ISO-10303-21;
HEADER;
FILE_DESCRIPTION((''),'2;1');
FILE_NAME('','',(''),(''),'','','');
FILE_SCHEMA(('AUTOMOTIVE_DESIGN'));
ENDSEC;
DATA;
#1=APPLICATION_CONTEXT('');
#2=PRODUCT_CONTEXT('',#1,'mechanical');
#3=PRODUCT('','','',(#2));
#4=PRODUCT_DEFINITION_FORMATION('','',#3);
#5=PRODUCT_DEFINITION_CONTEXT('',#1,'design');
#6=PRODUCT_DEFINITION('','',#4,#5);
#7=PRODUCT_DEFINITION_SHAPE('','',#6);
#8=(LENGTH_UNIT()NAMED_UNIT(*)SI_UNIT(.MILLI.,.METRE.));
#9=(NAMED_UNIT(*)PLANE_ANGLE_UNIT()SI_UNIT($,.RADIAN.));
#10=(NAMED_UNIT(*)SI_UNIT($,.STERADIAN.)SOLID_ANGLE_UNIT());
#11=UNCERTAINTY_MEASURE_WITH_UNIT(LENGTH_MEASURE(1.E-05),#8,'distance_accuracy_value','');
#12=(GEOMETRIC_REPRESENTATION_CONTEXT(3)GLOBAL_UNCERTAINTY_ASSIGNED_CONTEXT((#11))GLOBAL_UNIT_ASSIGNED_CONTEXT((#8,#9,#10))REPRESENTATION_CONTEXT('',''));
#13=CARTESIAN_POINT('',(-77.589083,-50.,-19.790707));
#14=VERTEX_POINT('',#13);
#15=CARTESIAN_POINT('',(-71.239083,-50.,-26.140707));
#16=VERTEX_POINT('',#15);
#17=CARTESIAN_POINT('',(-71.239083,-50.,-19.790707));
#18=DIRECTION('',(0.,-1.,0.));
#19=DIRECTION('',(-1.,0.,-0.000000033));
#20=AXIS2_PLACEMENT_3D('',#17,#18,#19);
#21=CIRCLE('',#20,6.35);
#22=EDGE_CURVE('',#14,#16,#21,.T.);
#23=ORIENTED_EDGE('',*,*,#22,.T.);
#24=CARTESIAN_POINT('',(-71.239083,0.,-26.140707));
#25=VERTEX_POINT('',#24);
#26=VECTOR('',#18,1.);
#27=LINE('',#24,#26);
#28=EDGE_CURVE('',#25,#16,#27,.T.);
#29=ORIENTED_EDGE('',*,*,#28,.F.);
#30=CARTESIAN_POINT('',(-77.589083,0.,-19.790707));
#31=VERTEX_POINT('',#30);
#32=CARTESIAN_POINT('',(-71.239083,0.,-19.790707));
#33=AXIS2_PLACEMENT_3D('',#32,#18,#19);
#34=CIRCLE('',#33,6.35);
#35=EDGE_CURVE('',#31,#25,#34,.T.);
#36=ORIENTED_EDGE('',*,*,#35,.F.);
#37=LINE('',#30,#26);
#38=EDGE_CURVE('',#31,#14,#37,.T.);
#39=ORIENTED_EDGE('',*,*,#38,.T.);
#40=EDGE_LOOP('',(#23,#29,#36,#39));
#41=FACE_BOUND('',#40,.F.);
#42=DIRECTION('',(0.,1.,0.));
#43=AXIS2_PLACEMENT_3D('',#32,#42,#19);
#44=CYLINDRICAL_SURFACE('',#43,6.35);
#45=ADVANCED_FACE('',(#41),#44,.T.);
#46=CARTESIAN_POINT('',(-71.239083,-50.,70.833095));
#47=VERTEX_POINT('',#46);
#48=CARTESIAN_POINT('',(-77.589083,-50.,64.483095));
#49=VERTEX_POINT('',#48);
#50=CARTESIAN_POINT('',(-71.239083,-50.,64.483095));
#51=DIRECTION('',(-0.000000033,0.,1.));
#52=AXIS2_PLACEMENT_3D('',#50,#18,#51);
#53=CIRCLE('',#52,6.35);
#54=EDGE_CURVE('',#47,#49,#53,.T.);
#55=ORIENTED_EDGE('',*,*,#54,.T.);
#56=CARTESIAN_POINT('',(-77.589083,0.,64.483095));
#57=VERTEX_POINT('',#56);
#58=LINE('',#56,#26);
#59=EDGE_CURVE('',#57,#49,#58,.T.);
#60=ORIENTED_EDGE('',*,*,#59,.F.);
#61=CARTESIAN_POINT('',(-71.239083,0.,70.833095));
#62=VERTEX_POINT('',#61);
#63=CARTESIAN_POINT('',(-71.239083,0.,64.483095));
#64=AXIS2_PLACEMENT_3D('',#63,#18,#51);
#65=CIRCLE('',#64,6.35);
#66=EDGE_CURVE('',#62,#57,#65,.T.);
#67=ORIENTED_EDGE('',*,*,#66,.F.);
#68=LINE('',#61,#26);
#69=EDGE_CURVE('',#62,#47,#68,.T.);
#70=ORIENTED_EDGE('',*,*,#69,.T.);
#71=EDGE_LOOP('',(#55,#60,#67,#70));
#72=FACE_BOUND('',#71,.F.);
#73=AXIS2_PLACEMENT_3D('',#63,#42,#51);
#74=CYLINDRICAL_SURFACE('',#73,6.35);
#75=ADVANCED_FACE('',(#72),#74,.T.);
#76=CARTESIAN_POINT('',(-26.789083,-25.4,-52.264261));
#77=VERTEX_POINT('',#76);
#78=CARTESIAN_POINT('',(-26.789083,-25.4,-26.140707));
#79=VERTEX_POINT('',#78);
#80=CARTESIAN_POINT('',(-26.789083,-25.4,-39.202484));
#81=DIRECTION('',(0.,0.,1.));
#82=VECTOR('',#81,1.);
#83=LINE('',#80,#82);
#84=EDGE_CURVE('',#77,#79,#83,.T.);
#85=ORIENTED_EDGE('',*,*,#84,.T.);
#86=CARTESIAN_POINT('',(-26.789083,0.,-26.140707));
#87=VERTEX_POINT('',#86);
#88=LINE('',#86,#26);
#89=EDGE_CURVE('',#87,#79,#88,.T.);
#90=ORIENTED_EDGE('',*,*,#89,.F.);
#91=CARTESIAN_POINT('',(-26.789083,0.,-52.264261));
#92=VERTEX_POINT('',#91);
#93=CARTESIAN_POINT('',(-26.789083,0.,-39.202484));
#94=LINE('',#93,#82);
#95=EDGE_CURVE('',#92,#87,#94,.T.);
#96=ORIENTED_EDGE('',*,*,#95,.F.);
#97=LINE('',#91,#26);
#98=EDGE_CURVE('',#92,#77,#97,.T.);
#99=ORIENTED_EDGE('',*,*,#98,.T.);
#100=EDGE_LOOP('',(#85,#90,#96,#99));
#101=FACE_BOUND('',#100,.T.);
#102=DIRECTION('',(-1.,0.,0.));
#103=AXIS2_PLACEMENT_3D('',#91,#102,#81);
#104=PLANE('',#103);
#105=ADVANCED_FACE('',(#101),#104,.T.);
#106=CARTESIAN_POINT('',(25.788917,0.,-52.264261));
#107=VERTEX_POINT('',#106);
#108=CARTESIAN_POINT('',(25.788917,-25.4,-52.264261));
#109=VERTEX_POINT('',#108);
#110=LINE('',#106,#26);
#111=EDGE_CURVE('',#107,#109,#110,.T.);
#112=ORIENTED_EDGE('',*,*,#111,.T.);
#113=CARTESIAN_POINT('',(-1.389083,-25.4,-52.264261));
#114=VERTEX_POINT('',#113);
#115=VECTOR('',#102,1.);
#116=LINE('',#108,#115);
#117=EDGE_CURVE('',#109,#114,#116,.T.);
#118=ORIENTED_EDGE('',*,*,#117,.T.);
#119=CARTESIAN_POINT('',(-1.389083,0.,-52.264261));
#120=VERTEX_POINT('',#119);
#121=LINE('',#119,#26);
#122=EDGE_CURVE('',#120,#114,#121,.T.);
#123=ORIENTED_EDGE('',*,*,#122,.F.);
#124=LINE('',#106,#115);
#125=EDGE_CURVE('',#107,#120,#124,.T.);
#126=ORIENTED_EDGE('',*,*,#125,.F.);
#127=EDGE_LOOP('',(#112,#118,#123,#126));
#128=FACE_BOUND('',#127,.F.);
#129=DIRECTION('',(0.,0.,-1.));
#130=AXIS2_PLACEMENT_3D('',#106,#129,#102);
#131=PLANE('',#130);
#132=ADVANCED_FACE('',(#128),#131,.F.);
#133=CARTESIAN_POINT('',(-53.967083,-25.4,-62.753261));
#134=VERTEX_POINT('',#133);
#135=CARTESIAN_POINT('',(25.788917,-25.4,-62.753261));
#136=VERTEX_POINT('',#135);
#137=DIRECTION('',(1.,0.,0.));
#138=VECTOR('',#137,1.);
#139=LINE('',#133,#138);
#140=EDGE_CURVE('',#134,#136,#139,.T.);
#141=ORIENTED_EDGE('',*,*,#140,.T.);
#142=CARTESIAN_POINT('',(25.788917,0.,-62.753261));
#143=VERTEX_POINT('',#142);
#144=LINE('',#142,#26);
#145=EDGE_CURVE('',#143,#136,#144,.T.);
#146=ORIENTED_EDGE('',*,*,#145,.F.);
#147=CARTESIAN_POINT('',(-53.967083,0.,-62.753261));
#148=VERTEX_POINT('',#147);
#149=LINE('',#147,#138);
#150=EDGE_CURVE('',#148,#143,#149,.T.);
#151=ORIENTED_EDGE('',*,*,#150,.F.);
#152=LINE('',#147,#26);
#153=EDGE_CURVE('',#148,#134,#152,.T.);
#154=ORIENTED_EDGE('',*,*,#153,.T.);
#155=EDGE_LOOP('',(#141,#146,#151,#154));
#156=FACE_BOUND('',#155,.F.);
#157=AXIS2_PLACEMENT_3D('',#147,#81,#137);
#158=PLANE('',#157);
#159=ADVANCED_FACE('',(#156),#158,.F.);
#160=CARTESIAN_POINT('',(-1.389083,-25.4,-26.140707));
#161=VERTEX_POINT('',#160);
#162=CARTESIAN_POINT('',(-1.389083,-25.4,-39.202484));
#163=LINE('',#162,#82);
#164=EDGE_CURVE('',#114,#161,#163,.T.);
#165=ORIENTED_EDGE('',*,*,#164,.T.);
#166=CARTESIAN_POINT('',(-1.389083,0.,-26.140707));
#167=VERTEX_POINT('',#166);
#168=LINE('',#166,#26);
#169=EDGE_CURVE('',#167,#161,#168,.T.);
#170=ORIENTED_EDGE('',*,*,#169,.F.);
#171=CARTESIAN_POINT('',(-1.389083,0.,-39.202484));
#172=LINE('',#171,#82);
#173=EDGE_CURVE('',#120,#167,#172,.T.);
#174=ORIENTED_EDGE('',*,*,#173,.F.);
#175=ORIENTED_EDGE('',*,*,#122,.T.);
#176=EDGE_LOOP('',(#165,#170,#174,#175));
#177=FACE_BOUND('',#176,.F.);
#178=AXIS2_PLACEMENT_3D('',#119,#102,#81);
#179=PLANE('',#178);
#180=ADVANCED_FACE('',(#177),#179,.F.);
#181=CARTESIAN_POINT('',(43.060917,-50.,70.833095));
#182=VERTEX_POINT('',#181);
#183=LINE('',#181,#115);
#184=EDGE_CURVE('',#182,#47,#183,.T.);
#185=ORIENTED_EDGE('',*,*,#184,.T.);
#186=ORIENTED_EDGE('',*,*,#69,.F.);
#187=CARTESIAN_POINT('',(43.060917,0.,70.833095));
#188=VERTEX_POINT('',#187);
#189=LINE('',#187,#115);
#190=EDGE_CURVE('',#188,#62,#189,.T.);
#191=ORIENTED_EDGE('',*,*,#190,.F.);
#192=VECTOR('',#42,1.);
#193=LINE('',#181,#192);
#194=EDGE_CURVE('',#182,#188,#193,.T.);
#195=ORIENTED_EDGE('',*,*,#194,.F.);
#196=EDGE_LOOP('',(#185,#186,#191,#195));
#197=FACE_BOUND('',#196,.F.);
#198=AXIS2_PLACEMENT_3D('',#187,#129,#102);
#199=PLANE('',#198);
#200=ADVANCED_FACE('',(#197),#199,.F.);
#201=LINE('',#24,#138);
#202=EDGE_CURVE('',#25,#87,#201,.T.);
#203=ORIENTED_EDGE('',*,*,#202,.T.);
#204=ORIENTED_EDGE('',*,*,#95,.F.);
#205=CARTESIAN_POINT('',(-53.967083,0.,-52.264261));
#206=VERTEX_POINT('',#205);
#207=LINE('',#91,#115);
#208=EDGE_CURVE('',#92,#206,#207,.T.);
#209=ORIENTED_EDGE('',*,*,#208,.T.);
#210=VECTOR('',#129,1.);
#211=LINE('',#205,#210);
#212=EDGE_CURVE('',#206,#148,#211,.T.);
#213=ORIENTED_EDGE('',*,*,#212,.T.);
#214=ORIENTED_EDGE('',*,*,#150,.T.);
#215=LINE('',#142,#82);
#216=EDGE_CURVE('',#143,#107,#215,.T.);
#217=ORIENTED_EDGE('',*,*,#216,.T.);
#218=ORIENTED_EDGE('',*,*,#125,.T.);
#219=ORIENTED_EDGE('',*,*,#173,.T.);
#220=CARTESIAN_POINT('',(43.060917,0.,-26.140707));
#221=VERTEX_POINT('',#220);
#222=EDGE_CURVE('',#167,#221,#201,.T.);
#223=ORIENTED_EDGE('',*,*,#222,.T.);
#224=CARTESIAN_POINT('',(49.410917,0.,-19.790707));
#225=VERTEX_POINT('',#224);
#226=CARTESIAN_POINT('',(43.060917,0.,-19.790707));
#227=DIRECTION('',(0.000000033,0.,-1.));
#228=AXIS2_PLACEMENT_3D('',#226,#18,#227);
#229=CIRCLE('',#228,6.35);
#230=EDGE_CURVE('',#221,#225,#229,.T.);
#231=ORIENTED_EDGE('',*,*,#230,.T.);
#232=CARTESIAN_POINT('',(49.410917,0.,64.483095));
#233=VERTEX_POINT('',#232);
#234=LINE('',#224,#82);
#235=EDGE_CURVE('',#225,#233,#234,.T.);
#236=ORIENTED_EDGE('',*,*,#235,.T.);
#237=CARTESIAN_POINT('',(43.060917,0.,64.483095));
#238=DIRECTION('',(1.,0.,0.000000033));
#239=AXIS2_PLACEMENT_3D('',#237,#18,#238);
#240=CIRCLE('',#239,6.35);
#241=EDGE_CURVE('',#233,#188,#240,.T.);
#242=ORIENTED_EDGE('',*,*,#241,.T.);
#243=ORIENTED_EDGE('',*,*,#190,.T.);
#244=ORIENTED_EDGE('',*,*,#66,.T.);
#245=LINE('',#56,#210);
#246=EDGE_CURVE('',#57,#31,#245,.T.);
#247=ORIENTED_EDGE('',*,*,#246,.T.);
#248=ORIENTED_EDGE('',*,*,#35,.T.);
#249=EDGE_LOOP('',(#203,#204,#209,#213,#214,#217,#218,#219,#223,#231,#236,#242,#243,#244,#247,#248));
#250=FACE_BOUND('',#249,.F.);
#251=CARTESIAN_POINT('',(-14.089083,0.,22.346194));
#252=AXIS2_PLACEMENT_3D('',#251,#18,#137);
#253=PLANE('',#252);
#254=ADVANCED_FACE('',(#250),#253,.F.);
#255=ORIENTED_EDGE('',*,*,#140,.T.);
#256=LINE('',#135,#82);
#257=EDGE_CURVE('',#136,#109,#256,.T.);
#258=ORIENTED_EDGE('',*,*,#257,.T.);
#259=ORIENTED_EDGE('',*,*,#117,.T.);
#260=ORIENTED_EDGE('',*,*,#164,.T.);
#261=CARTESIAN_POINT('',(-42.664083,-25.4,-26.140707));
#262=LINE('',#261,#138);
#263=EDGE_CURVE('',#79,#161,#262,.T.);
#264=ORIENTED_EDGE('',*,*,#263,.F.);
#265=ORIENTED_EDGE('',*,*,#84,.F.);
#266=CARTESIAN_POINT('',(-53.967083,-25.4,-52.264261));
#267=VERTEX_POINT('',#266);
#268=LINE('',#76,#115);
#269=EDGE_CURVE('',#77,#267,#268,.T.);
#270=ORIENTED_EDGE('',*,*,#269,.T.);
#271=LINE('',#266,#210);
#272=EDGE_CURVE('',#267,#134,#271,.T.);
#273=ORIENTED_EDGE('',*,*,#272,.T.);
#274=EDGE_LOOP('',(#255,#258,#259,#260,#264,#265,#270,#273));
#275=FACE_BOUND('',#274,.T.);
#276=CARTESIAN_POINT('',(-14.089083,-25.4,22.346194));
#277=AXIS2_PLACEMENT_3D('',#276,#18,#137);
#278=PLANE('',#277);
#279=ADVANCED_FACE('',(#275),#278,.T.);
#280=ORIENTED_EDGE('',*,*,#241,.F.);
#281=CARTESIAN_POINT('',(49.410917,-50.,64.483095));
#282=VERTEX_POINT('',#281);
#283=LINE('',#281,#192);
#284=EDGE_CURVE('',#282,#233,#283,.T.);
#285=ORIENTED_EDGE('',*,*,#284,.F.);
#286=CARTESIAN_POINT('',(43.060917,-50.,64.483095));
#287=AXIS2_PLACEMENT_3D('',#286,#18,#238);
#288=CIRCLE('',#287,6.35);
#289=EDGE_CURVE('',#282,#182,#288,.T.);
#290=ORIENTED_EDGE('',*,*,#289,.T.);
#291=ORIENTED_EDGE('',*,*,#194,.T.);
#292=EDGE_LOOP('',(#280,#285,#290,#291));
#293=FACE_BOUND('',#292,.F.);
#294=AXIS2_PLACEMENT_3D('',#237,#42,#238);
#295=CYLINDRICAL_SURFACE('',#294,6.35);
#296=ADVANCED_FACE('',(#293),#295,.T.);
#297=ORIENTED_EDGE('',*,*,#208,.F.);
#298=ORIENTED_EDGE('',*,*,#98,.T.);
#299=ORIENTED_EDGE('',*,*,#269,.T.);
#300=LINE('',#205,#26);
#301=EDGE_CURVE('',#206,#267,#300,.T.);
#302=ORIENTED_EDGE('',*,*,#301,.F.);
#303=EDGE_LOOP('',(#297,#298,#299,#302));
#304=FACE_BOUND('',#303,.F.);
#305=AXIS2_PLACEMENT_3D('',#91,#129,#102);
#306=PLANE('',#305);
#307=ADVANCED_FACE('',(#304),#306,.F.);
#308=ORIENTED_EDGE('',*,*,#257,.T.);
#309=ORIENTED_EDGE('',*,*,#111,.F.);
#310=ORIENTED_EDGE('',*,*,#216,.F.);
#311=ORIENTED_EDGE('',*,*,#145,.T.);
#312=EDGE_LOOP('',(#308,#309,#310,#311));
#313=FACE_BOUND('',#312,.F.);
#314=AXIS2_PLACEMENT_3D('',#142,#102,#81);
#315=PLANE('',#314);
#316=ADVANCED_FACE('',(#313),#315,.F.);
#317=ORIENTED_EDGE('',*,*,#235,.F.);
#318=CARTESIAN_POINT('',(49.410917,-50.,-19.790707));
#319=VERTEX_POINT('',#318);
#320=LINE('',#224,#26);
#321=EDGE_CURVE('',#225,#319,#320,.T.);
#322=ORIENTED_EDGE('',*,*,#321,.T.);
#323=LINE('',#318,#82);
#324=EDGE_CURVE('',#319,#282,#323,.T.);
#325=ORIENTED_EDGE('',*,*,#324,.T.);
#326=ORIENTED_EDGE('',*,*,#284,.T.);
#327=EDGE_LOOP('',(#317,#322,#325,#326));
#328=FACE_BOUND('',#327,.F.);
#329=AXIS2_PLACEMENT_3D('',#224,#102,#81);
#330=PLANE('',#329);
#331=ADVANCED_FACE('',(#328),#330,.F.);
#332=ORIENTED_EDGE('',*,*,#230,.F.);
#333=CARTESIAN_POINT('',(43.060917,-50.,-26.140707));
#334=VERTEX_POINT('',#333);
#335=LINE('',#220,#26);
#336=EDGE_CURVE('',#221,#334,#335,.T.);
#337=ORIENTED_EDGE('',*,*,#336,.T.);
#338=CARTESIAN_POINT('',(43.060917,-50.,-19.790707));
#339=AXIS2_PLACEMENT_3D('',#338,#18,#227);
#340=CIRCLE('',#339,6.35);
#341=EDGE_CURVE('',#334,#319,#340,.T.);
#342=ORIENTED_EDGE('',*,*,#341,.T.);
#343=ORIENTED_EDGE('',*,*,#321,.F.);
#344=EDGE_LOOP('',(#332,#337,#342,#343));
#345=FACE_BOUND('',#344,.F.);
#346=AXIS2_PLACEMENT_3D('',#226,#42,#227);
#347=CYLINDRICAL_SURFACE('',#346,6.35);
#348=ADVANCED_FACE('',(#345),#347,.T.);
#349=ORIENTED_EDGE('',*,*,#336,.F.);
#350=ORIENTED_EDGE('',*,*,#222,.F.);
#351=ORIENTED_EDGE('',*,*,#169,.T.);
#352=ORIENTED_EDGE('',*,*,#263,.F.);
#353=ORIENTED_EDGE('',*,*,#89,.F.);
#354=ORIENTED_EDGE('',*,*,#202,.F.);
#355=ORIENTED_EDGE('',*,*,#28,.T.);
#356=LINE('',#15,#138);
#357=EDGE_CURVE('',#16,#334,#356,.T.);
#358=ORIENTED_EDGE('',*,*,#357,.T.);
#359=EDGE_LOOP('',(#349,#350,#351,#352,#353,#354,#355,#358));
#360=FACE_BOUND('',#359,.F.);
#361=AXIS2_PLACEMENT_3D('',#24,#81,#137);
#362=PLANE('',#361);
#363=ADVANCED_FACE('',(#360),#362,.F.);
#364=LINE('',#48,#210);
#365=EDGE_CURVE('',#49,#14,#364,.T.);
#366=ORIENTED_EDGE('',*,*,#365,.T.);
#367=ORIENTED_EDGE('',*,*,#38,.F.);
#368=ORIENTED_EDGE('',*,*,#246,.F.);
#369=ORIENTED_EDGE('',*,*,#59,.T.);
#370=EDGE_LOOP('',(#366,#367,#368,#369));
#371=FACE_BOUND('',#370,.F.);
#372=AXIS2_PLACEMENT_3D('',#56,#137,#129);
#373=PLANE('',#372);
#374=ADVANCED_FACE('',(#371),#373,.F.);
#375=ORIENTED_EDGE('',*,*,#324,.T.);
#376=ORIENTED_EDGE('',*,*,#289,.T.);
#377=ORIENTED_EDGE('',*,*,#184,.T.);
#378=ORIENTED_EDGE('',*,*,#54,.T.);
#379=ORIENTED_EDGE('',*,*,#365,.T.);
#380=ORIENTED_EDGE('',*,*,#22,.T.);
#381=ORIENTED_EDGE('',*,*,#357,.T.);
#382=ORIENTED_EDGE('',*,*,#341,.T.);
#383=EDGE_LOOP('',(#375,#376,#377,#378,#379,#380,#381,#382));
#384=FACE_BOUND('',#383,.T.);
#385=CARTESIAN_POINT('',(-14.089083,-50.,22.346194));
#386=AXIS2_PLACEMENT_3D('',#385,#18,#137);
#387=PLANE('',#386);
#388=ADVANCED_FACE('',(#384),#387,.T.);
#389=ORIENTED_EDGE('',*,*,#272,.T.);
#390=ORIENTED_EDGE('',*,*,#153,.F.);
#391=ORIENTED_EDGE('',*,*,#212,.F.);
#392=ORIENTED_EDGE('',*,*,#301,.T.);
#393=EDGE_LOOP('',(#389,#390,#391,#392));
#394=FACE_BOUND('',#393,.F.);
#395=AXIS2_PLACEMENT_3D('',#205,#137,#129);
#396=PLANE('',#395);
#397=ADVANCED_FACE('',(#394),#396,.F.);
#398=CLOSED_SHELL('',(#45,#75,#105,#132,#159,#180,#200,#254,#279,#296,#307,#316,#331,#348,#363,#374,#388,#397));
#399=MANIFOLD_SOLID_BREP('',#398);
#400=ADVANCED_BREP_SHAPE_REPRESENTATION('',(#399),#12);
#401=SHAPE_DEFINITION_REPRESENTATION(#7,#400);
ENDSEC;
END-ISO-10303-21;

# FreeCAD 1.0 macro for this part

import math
import FreeCAD as App
import Part
import Sketcher
from FreeCAD import Vector
Q = App.Units.Quantity

doc = App.newDocument("Part")
body = doc.addObject("PartDesign::Body", "Body")

sketch1 = body.newObject("Sketcher::SketchObject", "Sketch")
sketch1.AttachmentSupport = (doc.getObject("XZ_Plane"), [""])
sketch1.MapMode = "FlatFace"
sketch1.addGeometry([
    Part.LineSegment(Vector(43, 71, 0), Vector(-71, 71, 0)),
    Part.ArcOfCircle(Part.Circle(Vector(-71, 64, 0), Vector(0, 0, 1), 6), math.radians(90), math.radians(180)),
    Part.LineSegment(Vector(-78, 64, 0), Vector(-78, -20, 0)),
    Part.ArcOfCircle(Part.Circle(Vector(-71, -20, 0), Vector(0, 0, 1), 6), math.radians(-180), math.radians(-90)),
    Part.LineSegment(Vector(-71, -26, 0), Vector(43, -26, 0)),
    Part.ArcOfCircle(Part.Circle(Vector(43, -20, 0), Vector(0, 0, 1), 6), math.radians(-90), math.radians(0)),
    Part.LineSegment(Vector(49, -20, 0), Vector(49, 64, 0)),
    Part.ArcOfCircle(Part.Circle(Vector(43, 64, 0), Vector(0, 0, 1), 6), math.radians(0), math.radians(90)),
], False)
sketch1.addConstraint([
    Sketcher.Constraint("Tangent", 0, 2, 1, 1),
    Sketcher.Constraint("Tangent", 1, 2, 2, 1),
    Sketcher.Constraint("Tangent", 2, 2, 3, 1),
    Sketcher.Constraint("Tangent", 3, 2, 4, 1),
    Sketcher.Constraint("Tangent", 4, 2, 5, 1),
    Sketcher.Constraint("Tangent", 5, 2, 6, 1),
    Sketcher.Constraint("Tangent", 6, 2, 7, 1),
    Sketcher.Constraint("Tangent", 7, 2, 0, 1),
    Sketcher.Constraint("Horizontal", 0),
    Sketcher.Constraint("Vertical", 2),
    Sketcher.Constraint("Horizontal", 4),
    Sketcher.Constraint("Vertical", 6),
    Sketcher.Constraint("Equal", 1, 3),
    Sketcher.Constraint("Equal", 3, 5),
    Sketcher.Constraint("Equal", 5, 7),
    Sketcher.Constraint("Radius", 1, Q("0.25 in")),
    Sketcher.Constraint("DistanceX", 0, 2, 0, 1, Q("4.5 in")),
    Sketcher.Constraint("DistanceY", 3, 3, 1, 3, 84.273802),
    Sketcher.Constraint("DistanceX", 1, 3, -1, 1, 71.239083),
    Sketcher.Constraint("DistanceY", -1, 1, 1, 3, 64.483095),
])
pad1 = body.newObject("PartDesign::Pad", "Pad")
pad1.Profile = sketch1
pad1.Length = 50

sketch2 = body.newObject("Sketcher::SketchObject", "Sketch001")
sketch2.AttachmentSupport = (doc.getObject("XZ_Plane"), [""])
sketch2.MapMode = "FlatFace"
sketch2.addGeometry([
    Part.LineSegment(Vector(43, 71, 0), Vector(-71, 71, 0)),
    Part.ArcOfCircle(Part.Circle(Vector(-71, 64, 0), Vector(0, 0, 1), 6), math.radians(90), math.radians(180)),
    Part.LineSegment(Vector(-78, 64, 0), Vector(-78, -20, 0)),
    Part.ArcOfCircle(Part.Circle(Vector(-71, -20, 0), Vector(0, 0, 1), 6), math.radians(-180), math.radians(-90)),
    Part.LineSegment(Vector(-71, -26, 0), Vector(-27, -26, 0)),
    Part.LineSegment(Vector(-27, -26, 0), Vector(-27, -52, 0)),
    Part.LineSegment(Vector(-27, -52, 0), Vector(-54, -52, 0)),
    Part.LineSegment(Vector(-54, -52, 0), Vector(-54, -63, 0)),
    Part.LineSegment(Vector(-54, -63, 0), Vector(26, -63, 0)),
    Part.LineSegment(Vector(26, -63, 0), Vector(26, -52, 0)),
    Part.LineSegment(Vector(26, -52, 0), Vector(-1, -52, 0)),
    Part.LineSegment(Vector(-1, -52, 0), Vector(-1, -26, 0)),
    Part.LineSegment(Vector(-1, -26, 0), Vector(43, -26, 0)),
    Part.ArcOfCircle(Part.Circle(Vector(43, -20, 0), Vector(0, 0, 1), 6), math.radians(-90), math.radians(0)),
    Part.LineSegment(Vector(49, -20, 0), Vector(49, 64, 0)),
    Part.ArcOfCircle(Part.Circle(Vector(43, 64, 0), Vector(0, 0, 1), 6), math.radians(0), math.radians(90)),
], False)
sketch2.addConstraint([
    Sketcher.Constraint("Tangent", 0, 2, 1, 1),
    Sketcher.Constraint("Tangent", 1, 2, 2, 1),
    Sketcher.Constraint("Tangent", 2, 2, 3, 1),
    Sketcher.Constraint("Tangent", 3, 2, 4, 1),
    Sketcher.Constraint("Coincident", 4, 2, 5, 1),
    Sketcher.Constraint("Coincident", 5, 2, 6, 1),
    Sketcher.Constraint("Coincident", 6, 2, 7, 1),
    Sketcher.Constraint("Coincident", 7, 2, 8, 1),
    Sketcher.Constraint("Coincident", 8, 2, 9, 1),
    Sketcher.Constraint("Coincident", 9, 2, 10, 1),
    Sketcher.Constraint("Coincident", 10, 2, 11, 1),
    Sketcher.Constraint("Coincident", 11, 2, 12, 1),
    Sketcher.Constraint("Tangent", 12, 2, 13, 1),
    Sketcher.Constraint("Tangent", 13, 2, 14, 1),
    Sketcher.Constraint("Tangent", 14, 2, 15, 1),
    Sketcher.Constraint("Tangent", 15, 2, 0, 1),
    Sketcher.Constraint("Horizontal", 0),
    Sketcher.Constraint("Vertical", 2),
    Sketcher.Constraint("Horizontal", 4),
    Sketcher.Constraint("Vertical", 5),
    Sketcher.Constraint("Horizontal", 6),
    Sketcher.Constraint("Vertical", 7),
    Sketcher.Constraint("Horizontal", 8),
    Sketcher.Constraint("Vertical", 9),
    Sketcher.Constraint("Horizontal", 10),
    Sketcher.Constraint("Vertical", 11),
    Sketcher.Constraint("Horizontal", 12),
    Sketcher.Constraint("Vertical", 14),
    Sketcher.Constraint("Equal", 1, 3),
    Sketcher.Constraint("Equal", 3, 13),
    Sketcher.Constraint("Equal", 13, 15),
    Sketcher.Constraint("Horizontal", 3, 3, 13, 3),
    Sketcher.Constraint("Horizontal", 6, 2, 9, 2),
    Sketcher.Constraint("Equal", 6, 10),
    Sketcher.Constraint("Equal", 4, 12),
    Sketcher.Constraint("Radius", 1, Q("0.25 in")),
    Sketcher.Constraint("DistanceX", 0, 2, 0, 1, Q("4.5 in")),
    Sketcher.Constraint("DistanceX", 2, 2, 4, 2, Q("2 in")),
    Sketcher.Constraint("DistanceX", 6, 2, 6, 1, Q("1.07 in")),
    Sketcher.Constraint("DistanceY", 7, 2, 7, 1, 10.489),
    Sketcher.Constraint("DistanceY", 3, 3, 1, 3, 84.273802),
    Sketcher.Constraint("DistanceY", 5, 2, 5, 1, 26.123554),
    Sketcher.Constraint("DistanceY", 5, 2, -1, 1, 52.264261),
    Sketcher.Constraint("DistanceX", 1, 3, -1, 1, 71.239083),
])
pad2 = body.newObject("PartDesign::Pad", "Pad001")
pad2.Profile = sketch2
pad2.Length = Q("1 in")

doc.recompute()
